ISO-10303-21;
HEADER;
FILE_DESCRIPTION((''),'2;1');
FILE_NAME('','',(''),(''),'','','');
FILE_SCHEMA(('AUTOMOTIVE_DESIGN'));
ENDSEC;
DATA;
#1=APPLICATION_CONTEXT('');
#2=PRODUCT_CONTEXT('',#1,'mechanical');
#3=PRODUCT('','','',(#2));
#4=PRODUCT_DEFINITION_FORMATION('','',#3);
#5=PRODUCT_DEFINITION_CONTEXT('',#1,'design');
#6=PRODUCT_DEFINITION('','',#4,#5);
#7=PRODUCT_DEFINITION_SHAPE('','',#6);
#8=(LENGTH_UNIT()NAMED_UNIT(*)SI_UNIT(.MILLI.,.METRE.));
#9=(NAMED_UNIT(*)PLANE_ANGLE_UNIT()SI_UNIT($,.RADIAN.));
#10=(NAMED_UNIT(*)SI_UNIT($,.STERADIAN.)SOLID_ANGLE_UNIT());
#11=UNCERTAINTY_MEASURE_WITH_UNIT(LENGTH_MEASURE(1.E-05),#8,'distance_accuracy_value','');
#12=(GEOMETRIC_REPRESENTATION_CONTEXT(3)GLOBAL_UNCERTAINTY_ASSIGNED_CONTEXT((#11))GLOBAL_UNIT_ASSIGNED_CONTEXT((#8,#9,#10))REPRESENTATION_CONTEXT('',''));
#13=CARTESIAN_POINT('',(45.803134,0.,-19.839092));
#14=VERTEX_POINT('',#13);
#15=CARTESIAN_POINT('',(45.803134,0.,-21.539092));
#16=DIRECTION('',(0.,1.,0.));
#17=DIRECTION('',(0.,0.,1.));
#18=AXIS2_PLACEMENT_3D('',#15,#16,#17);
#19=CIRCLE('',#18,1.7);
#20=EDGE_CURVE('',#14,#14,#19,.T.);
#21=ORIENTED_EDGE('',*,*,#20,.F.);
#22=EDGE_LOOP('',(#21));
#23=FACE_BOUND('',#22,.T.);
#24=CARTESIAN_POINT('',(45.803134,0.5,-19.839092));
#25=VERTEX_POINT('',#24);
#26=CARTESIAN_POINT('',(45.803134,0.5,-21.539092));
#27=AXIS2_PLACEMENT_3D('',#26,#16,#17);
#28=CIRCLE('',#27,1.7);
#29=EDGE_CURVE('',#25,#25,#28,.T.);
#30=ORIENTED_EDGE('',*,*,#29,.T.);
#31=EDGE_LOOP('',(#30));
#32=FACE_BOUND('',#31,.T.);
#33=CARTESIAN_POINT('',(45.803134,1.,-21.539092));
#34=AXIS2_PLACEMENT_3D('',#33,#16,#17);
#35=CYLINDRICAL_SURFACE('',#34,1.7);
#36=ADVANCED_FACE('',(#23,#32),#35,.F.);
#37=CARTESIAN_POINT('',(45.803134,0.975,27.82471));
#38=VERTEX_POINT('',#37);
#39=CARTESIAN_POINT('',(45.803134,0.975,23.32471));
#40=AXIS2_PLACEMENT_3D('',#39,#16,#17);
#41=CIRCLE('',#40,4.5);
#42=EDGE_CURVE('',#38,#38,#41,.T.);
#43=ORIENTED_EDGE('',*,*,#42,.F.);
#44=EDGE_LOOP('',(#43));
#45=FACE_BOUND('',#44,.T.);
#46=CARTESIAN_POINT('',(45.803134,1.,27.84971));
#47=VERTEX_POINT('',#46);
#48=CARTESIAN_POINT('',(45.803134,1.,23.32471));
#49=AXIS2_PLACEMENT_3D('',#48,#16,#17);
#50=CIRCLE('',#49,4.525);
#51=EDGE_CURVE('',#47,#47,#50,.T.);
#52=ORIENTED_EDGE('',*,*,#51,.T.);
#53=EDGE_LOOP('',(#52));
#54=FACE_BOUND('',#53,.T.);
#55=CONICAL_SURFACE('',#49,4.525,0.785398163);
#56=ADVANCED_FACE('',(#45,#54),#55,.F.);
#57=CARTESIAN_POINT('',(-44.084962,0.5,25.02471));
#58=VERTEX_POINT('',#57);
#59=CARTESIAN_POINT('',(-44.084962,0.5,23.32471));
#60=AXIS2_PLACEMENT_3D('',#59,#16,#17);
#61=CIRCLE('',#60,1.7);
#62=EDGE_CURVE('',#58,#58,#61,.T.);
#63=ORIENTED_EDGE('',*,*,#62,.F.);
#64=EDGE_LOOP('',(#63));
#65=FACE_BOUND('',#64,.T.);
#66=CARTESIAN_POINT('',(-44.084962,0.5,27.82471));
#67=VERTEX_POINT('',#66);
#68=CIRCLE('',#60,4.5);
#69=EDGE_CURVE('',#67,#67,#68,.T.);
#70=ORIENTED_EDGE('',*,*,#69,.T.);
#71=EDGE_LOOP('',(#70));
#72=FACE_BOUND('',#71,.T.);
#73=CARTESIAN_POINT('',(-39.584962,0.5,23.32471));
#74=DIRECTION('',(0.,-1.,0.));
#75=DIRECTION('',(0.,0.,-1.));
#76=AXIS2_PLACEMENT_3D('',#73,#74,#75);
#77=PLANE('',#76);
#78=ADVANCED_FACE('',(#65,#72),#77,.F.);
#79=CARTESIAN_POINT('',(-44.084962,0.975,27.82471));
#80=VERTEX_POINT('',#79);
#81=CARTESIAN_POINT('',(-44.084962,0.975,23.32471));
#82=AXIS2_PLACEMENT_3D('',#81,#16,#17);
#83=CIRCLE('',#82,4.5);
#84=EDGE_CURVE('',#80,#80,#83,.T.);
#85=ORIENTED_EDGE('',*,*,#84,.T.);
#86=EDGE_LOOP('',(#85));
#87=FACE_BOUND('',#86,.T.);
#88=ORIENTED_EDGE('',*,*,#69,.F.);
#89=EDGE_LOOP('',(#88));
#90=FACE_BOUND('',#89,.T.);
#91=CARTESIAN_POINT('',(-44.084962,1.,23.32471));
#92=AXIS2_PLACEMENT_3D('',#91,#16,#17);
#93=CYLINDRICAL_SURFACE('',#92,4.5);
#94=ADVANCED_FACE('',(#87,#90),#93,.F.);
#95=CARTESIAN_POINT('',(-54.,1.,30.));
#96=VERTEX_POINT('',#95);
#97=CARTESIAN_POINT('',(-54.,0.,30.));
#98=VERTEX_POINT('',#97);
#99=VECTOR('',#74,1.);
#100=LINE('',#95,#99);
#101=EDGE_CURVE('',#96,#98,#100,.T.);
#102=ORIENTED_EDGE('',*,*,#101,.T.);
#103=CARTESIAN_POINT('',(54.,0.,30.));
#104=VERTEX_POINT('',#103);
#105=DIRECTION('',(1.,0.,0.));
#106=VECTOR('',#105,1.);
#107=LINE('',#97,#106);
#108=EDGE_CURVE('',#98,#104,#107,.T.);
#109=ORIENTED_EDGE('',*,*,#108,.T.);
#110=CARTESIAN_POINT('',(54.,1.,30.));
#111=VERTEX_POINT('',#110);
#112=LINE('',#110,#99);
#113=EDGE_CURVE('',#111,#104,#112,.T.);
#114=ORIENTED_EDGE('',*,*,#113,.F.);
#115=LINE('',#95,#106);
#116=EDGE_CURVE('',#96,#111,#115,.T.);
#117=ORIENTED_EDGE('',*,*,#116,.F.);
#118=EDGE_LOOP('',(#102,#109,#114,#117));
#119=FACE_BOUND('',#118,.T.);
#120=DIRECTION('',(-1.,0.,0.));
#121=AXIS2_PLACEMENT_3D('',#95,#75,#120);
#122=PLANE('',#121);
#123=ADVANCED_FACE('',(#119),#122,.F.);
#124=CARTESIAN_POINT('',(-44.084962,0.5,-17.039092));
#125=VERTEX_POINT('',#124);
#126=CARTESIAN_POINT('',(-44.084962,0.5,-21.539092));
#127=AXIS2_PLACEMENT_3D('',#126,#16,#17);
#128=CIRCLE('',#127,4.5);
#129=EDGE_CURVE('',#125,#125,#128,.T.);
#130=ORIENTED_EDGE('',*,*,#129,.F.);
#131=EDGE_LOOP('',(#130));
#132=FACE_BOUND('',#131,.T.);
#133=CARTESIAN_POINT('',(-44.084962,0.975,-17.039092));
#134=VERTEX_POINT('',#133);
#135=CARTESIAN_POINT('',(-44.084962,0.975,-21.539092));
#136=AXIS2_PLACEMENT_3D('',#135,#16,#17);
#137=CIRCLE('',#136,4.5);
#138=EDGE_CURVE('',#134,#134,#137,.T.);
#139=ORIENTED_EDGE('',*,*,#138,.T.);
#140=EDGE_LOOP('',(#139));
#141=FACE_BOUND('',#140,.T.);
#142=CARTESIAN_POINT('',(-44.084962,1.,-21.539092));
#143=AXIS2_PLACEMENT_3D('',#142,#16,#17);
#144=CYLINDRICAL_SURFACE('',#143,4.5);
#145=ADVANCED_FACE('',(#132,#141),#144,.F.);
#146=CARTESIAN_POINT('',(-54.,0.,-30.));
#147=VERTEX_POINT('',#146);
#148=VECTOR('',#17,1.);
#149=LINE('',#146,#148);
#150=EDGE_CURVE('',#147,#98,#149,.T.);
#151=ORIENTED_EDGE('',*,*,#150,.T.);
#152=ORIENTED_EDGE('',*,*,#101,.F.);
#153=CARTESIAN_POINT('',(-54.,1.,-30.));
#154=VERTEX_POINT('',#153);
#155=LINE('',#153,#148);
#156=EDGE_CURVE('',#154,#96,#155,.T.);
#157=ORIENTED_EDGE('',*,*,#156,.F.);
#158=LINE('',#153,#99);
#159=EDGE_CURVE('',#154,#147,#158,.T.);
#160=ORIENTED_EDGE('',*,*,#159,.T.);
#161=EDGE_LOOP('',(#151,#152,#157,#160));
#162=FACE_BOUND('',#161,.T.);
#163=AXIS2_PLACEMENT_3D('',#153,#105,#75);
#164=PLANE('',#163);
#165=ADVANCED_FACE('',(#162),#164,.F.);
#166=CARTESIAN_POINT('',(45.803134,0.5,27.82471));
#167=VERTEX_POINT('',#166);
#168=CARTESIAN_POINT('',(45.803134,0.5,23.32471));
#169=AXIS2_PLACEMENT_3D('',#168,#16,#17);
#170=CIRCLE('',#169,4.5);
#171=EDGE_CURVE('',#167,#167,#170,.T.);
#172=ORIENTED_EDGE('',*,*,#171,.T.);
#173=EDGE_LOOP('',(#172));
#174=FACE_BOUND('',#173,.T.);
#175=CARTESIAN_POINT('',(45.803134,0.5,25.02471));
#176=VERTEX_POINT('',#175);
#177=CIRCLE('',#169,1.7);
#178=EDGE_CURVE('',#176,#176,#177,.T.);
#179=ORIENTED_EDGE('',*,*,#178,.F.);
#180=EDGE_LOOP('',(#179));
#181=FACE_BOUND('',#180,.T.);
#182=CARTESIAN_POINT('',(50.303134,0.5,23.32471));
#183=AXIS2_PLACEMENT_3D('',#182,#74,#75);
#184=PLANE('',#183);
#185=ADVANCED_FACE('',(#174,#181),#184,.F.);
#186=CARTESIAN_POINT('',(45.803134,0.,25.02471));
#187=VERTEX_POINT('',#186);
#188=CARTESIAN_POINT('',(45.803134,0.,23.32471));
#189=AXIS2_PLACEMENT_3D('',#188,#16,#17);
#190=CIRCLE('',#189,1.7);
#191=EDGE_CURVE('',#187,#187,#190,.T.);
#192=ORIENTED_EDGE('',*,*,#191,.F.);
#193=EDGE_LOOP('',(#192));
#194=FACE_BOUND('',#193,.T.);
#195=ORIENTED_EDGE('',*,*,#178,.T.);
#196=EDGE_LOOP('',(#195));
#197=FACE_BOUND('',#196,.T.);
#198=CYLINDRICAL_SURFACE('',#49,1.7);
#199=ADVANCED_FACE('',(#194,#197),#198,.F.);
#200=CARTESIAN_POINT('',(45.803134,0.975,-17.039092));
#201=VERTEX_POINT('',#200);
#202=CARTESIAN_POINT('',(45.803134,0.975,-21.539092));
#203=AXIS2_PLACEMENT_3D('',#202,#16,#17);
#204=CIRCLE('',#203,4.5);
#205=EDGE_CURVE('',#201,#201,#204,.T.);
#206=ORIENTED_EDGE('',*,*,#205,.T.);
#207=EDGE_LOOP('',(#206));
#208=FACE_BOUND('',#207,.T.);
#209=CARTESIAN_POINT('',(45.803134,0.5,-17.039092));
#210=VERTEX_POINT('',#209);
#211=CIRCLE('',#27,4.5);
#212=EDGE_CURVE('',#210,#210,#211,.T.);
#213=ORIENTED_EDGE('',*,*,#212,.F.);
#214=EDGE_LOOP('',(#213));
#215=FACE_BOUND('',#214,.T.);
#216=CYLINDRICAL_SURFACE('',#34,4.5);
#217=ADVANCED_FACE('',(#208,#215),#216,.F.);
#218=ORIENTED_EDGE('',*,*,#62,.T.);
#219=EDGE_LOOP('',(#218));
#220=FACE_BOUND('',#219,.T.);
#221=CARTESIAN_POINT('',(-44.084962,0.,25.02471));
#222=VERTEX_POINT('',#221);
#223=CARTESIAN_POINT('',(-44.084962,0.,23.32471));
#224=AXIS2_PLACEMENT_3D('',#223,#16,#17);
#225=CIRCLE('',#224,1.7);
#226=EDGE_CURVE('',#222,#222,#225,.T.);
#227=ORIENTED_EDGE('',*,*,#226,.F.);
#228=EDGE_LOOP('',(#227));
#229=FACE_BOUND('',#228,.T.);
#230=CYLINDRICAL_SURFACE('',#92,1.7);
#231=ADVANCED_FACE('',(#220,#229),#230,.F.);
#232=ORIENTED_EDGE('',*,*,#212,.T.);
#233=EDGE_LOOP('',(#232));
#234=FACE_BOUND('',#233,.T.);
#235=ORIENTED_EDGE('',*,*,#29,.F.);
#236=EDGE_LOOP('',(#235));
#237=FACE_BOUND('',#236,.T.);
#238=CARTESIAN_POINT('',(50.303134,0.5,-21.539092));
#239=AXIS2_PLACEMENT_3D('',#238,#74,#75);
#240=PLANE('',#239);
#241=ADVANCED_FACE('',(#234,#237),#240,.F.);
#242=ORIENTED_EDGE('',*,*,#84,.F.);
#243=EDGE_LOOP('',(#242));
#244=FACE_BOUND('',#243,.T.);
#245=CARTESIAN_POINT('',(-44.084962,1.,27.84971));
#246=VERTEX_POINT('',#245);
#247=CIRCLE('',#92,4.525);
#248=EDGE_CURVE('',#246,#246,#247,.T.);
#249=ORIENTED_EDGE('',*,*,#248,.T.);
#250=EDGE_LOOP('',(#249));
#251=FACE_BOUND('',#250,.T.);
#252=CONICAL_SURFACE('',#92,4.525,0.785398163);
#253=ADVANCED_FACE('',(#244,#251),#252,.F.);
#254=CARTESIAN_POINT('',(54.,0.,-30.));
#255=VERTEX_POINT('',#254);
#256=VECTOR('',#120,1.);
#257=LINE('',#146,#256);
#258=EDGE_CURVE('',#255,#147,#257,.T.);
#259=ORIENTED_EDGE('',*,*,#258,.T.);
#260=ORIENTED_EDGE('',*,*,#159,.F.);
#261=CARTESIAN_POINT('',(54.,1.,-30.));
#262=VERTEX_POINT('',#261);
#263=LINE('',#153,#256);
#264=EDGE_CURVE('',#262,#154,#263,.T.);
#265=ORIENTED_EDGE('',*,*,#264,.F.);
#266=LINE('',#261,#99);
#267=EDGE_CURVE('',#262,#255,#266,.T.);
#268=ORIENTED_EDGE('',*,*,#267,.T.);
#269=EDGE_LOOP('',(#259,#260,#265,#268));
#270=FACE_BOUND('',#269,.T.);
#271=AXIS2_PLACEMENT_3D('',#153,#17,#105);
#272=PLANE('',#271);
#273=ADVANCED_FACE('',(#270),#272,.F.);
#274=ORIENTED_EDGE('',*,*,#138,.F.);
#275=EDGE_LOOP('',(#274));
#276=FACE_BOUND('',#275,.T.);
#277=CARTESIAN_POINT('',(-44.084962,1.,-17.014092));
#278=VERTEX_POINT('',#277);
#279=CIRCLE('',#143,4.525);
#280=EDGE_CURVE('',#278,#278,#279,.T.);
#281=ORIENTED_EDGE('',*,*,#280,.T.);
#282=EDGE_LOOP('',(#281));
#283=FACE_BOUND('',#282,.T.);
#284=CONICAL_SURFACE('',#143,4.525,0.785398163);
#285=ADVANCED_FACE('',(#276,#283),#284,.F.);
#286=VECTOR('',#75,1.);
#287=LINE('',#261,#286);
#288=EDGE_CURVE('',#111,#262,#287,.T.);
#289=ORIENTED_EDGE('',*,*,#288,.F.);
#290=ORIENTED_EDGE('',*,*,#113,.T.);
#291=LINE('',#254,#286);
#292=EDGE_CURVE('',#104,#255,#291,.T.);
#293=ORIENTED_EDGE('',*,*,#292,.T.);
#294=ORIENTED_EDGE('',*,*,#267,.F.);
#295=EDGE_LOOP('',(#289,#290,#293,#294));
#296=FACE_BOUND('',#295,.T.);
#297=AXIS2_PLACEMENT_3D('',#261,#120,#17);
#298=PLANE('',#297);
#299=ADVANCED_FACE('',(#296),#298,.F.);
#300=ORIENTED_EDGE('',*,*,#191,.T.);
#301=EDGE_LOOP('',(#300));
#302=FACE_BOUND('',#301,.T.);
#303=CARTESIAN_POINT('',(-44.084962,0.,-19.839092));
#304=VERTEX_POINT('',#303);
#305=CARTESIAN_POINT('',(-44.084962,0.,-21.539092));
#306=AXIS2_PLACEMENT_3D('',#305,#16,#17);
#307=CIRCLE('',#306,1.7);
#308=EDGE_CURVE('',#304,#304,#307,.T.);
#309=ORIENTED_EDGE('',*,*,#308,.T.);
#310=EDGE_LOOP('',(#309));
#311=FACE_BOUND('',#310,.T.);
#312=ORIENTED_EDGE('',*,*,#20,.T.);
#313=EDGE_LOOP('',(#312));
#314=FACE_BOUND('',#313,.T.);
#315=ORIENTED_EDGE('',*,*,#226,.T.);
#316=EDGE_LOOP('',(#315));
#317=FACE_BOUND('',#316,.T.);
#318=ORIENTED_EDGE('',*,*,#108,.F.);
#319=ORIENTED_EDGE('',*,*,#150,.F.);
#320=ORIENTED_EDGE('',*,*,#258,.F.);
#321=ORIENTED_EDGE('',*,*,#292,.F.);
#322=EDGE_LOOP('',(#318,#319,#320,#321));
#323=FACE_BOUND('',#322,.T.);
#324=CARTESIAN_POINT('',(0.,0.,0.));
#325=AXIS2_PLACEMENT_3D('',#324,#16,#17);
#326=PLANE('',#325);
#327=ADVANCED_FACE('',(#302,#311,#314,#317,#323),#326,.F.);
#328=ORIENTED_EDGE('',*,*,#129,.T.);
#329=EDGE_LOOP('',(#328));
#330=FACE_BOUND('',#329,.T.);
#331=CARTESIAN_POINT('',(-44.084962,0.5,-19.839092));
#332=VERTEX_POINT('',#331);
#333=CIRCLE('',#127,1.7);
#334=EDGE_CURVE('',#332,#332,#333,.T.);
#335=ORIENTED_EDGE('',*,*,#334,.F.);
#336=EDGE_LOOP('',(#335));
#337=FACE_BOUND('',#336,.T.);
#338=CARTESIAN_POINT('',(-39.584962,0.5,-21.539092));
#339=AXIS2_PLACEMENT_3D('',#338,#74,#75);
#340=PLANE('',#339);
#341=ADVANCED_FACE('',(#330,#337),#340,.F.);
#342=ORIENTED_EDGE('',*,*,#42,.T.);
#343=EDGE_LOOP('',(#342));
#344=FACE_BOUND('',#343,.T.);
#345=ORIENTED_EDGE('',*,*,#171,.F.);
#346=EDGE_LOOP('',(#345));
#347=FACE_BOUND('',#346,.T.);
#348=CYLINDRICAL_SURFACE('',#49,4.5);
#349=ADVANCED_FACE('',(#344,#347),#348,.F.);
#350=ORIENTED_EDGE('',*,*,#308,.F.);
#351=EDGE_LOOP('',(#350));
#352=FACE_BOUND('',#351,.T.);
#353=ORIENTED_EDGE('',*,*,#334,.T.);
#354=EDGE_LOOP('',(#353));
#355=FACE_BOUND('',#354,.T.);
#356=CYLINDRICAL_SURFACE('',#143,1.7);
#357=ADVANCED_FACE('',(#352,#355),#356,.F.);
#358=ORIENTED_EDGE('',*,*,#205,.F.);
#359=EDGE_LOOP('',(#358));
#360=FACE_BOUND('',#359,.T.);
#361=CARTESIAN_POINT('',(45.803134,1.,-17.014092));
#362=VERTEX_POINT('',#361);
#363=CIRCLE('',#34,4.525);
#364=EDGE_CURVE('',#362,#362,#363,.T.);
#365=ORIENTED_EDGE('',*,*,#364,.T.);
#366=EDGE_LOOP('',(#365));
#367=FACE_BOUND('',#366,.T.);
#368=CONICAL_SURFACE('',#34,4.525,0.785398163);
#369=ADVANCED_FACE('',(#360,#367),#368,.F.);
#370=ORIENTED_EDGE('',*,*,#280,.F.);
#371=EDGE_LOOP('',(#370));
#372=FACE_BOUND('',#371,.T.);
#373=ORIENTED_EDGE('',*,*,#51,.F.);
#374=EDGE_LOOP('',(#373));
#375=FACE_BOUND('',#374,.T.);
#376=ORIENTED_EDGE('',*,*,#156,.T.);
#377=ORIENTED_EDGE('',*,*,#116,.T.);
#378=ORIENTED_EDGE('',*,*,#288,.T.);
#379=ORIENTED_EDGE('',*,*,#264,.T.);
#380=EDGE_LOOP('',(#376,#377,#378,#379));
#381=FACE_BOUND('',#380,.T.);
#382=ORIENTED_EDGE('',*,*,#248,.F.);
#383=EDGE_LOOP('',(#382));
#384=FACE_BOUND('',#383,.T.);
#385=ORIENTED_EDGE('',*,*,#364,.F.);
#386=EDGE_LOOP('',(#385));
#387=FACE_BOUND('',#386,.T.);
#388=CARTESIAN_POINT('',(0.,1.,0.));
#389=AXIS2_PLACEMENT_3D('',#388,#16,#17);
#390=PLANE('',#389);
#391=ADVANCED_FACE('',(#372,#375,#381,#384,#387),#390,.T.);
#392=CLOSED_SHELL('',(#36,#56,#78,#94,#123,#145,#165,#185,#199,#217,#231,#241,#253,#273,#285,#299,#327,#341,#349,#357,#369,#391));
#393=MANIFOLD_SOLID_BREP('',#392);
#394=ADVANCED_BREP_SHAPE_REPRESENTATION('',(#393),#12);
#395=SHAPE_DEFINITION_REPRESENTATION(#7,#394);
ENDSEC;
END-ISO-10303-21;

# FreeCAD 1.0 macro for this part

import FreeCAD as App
import Part
import Sketcher

V = App.Vector
Q = App.Units.Quantity

doc = App.newDocument("Part")
params = doc.addObject("Spreadsheet::Sheet", "Params")
for row, (alias, value) in enumerate([
    ("sketch1_width", "108 mm"),
    ("sketch1_height", "60 mm"),
    ("pad1_length", "1 mm"),
    ("sketch2_width", "1 mm"),
    ("sketch2_width2", "0.5 mm"),
    ("sketch2_height", "2.8 mm"),
    ("sketch2_height2", "1.7 mm"),
    ("groove_angle", "360 deg"),
    ("linearpattern_pitch", "89.888096 mm"),
    ("linearpattern2_pitch", "44.863802 mm"),
    ("linearpattern3_pitch", "100.462085 mm"),
], start=1):
    params.set(f"A{row}", alias)
    params.set(f"B{row}", "=" + value)
    params.setAlias(f"B{row}", alias)

body = doc.addObject("PartDesign::Body", "Body")

# Sketch on XZ plane
sketch1 = body.newObject("Sketcher::SketchObject", "Sketch")
sketch1.AttachmentSupport = (doc.getObject("XZ_Plane"), [""])
sketch1.MapMode = "FlatFace"
sketch1.addGeometry([
    Part.LineSegment(V(-54, -30, 0), V(-54, 30, 0)),
    Part.LineSegment(V(-54, 30, 0), V(54, 30, 0)),
    Part.LineSegment(V(54, 30, 0), V(54, -30, 0)),
    Part.LineSegment(V(54, -30, 0), V(-54, -30, 0)),
], False)
sketch1.addConstraint([
    Sketcher.Constraint("Coincident", 0, 2, 1, 1),
    Sketcher.Constraint("Coincident", 1, 2, 2, 1),
    Sketcher.Constraint("Coincident", 2, 2, 3, 1),
    Sketcher.Constraint("Coincident", 3, 2, 0, 1),
    Sketcher.Constraint("Vertical", 0),
    Sketcher.Constraint("Horizontal", 1),
    Sketcher.Constraint("Vertical", 2),
    Sketcher.Constraint("Horizontal", 3),
    Sketcher.Constraint("Symmetric", 0, 2, 2, 2, -1, 1),
    Sketcher.Constraint("DistanceX", 1, 1, 1, 2, Q("108 mm")),
    Sketcher.Constraint("DistanceY", 0, 1, 0, 2, Q("60 mm")),
])
sketch1.setExpression("Constraints[9]", "Params.sketch1_width")
sketch1.setExpression("Constraints[10]", "Params.sketch1_height")
pad1 = body.newObject("PartDesign::Pad", "Pad")
pad1.Profile = sketch1
pad1.setExpression("Length", "Params.pad1_length")
pad1.Reversed = True

# Sketch on YZ plane
sketch2 = body.newObject("Sketcher::SketchObject", "Sketch001")
sketch2.AttachmentSupport = (doc.getObject("YZ_Plane"), [""])
sketch2.MapMode = "FlatFace"
sketch2.AttachmentOffset = App.Placement(V(0, 0, -44.084962), App.Rotation())
sketch2.addGeometry([
    Part.LineSegment(V(0, -21.539, 0), V(1, -21.539, 0)),  # 0
    Part.LineSegment(V(1, -21.539, 0), V(1, -17.014, 0)),  # 1
    Part.LineSegment(V(1, -17.014, 0), V(0.975, -17.039, 0)),  # 2
    Part.LineSegment(V(0.975, -17.039, 0), V(0.5, -17.039, 0)),  # 3
    Part.LineSegment(V(0.5, -17.039, 0), V(0.5, -19.839, 0)),  # 4
    Part.LineSegment(V(0.5, -19.839, 0), V(0, -19.839, 0)),  # 5
    Part.LineSegment(V(0, -19.839, 0), V(0, -21.539, 0)),  # 6
], False)
sketch2.addGeometry(Part.LineSegment(V(1, -21.539, 0), V(0, -21.539, 0)), True)  # axis
sketch2.addConstraint([
    Sketcher.Constraint("Coincident", 0, 2, 1, 1),
    Sketcher.Constraint("Coincident", 1, 2, 2, 1),
    Sketcher.Constraint("Coincident", 2, 2, 3, 1),
    Sketcher.Constraint("Coincident", 3, 2, 4, 1),
    Sketcher.Constraint("Coincident", 4, 2, 5, 1),
    Sketcher.Constraint("Coincident", 5, 2, 6, 1),
    Sketcher.Constraint("Coincident", 6, 2, 0, 1),
    Sketcher.Constraint("Horizontal", 0),
    Sketcher.Constraint("Vertical", 1),
    Sketcher.Constraint("Horizontal", 3),
    Sketcher.Constraint("Vertical", 4),
    Sketcher.Constraint("Horizontal", 5),
    Sketcher.Constraint("Vertical", 6),
    Sketcher.Constraint("Horizontal", 7),
    Sketcher.Constraint("Coincident", 7, 1, 0, 2),
    Sketcher.Constraint("PointOnObject", 5, 2, -2),
    Sketcher.Constraint("PointOnObject", 7, 2, -2),
    Sketcher.Constraint("DistanceX", 0, 1, 0, 2, Q("1 mm")),
    Sketcher.Constraint("Angle", 2, Q("-135 deg")),
    Sketcher.Constraint("DistanceX", 5, 2, 5, 1, Q("0.5 mm")),
    Sketcher.Constraint("DistanceY", 4, 2, 4, 1, Q("2.8 mm")),
    Sketcher.Constraint("DistanceY", 6, 2, 6, 1, Q("1.7 mm")),
    Sketcher.Constraint("DistanceX", 3, 2, 3, 1, Q("0.475 mm")),
    Sketcher.Constraint("DistanceY", 0, 2, -1, 1, Q("21.539092 mm")),
])
sketch2.setExpression("Constraints[17]", "Params.sketch2_width")
sketch2.setExpression("Constraints[19]", "Params.sketch2_width2")
sketch2.setExpression("Constraints[20]", "Params.sketch2_height")
sketch2.setExpression("Constraints[21]", "Params.sketch2_height2")
groove = body.newObject("PartDesign::Groove", "Groove")
groove.Profile = sketch2
groove.ReferenceAxis = (sketch2, ["Axis0"])
groove.setExpression("Angle", "Params.groove_angle")
doc.recompute()

linearpattern = body.newObject("PartDesign::LinearPattern", "LinearPattern")
linearpattern.Originals = [groove]
linearpattern.Direction = (doc.getObject("X_Axis"), [""])
linearpattern.Mode = "offset"
linearpattern.setExpression("Offset", "Params.linearpattern_pitch")
linearpattern.Occurrences = 2
body.Tip = linearpattern
doc.recompute()

linearpattern2 = body.newObject("PartDesign::LinearPattern", "LinearPattern001")
linearpattern2.Originals = [groove]
linearpattern2.Direction = (doc.getObject("Z_Axis"), [""])
linearpattern2.Mode = "offset"
linearpattern2.setExpression("Offset", "Params.linearpattern2_pitch")
linearpattern2.Occurrences = 2
body.Tip = linearpattern2
doc.recompute()

datumline = body.newObject("PartDesign::Line", "DatumLine")
datumline.Placement = App.Placement(V(0, 0, 0), App.Rotation(V(0, 0, 1), V(0.894746471, 0, 0.446574464)))
linearpattern3 = body.newObject("PartDesign::LinearPattern", "LinearPattern002")
linearpattern3.Originals = [groove]
linearpattern3.Direction = (datumline, [""])
linearpattern3.Mode = "offset"
linearpattern3.setExpression("Offset", "Params.linearpattern3_pitch")
linearpattern3.Occurrences = 2
body.Tip = linearpattern3

doc.recompute()
